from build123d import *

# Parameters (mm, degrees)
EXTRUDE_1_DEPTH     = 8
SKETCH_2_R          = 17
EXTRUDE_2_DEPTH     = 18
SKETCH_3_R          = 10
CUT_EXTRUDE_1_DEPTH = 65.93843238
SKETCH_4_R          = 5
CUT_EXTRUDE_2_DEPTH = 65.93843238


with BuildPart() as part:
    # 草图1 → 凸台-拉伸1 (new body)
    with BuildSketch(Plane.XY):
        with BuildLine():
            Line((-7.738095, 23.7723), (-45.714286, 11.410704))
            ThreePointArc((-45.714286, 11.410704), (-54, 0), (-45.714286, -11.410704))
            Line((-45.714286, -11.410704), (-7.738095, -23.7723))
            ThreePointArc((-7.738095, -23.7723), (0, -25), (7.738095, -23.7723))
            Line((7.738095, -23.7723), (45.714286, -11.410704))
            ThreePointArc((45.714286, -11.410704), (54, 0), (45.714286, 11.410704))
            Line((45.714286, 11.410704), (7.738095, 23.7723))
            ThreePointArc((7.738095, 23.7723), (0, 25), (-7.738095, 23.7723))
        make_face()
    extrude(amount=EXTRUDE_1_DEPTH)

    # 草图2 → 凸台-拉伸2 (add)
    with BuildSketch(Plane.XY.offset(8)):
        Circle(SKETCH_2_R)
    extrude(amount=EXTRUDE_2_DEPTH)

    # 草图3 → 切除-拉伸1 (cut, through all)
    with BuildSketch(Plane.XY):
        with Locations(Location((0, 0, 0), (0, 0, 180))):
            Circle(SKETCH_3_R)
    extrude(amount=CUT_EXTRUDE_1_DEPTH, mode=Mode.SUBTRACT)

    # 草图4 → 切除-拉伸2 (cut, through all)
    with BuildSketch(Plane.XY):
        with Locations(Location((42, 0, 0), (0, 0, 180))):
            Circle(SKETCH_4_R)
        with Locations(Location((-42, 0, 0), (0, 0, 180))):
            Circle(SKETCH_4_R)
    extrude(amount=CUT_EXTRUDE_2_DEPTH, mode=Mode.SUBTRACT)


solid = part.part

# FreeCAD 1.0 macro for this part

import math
import FreeCAD as App
import Part
import Sketcher
from FreeCAD import Vector

doc = App.newDocument("Part")
body = doc.addObject("PartDesign::Body", "Body")

# Sketch on XY plane
sketch1 = body.newObject("Sketcher::SketchObject", "Sketch")
sketch1.AttachmentSupport = (doc.getObject("XY_Plane"), [""])
sketch1.MapMode = "FlatFace"
sketch1.addGeometry([
    Part.LineSegment(Vector(-7.738095, 23.7723, 0), Vector(-45.714286, 11.410704, 0)),  # 0
    Part.ArcOfCircle(Part.Circle(Vector(-41.999995, 0, 0), Vector(0, 0, 1), 12.000005), math.radians(108.030555), math.radians(251.969445)),  # 1
    Part.LineSegment(Vector(-45.714286, -11.410704, 0), Vector(-7.738095, -23.7723, 0)),  # 2
    Part.ArcOfCircle(Part.Circle(Vector(0, 0.000147, 0), Vector(0, 0, 1), 25.000147), math.radians(-108.030425), math.radians(-71.969575)),  # 3
    Part.LineSegment(Vector(7.738095, -23.7723, 0), Vector(45.714286, -11.410704, 0)),  # 4
    Part.ArcOfCircle(Part.Circle(Vector(41.999995, 0, 0), Vector(0, 0, 1), 12.000005), math.radians(-71.969445), math.radians(71.969445)),  # 5
    Part.LineSegment(Vector(45.714286, 11.410704, 0), Vector(7.738095, 23.7723, 0)),  # 6
    Part.ArcOfCircle(Part.Circle(Vector(0, -0.000147, 0), Vector(0, 0, 1), 25.000147), math.radians(71.969575), math.radians(108.030425)),  # 7
], False)
sketch1.addConstraint([
    Sketcher.Constraint("Tangent", 0, 2, 1, 1),
    Sketcher.Constraint("Tangent", 1, 2, 2, 1),
    Sketcher.Constraint("Coincident", 2, 2, 3, 1),
    Sketcher.Constraint("Coincident", 3, 2, 4, 1),
    Sketcher.Constraint("Tangent", 4, 2, 5, 1),
    Sketcher.Constraint("Tangent", 5, 2, 6, 1),
    Sketcher.Constraint("Coincident", 6, 2, 7, 1),
    Sketcher.Constraint("Coincident", 7, 2, 0, 1),
    Sketcher.Constraint("Equal", 1, 5),
    Sketcher.Constraint("Equal", 3, 7),
    Sketcher.Constraint("Symmetric", 1, 3, 5, 3, -1, 1),
    Sketcher.Constraint("Symmetric", 3, 3, 7, 3, -1, 1),
    Sketcher.Constraint("Symmetric", 2, 2, 3, 2, -2),
    Sketcher.Constraint("PointOnObject", 1, 3, -1),
    Sketcher.Constraint("Horizontal", 6, 2, 7, 2),
    Sketcher.Constraint("Vertical", 3, 2, 6, 2),
    Sketcher.Constraint("Radius", 1, 12.000005),
    Sketcher.Constraint("Radius", 3, 25.000147),
    Sketcher.Constraint("DistanceY", 2, 2, -1, 1, 23.7723),
    Sketcher.Constraint("DistanceX", 1, 3, 2, 2, 34.2619),
    Sketcher.Constraint("DistanceX", 1, 3, 5, 3, 83.99999),
])
pad1 = body.newObject("PartDesign::Pad", "Pad")
pad1.Profile = sketch1
pad1.Length = 8

# Sketch on XY plane
sketch2 = body.newObject("Sketcher::SketchObject", "Sketch001")
sketch2.AttachmentSupport = (doc.getObject("XY_Plane"), [""])
sketch2.MapMode = "FlatFace"
sketch2.AttachmentOffset = App.Placement(Vector(0, 0, 8), App.Rotation())
sketch2.addGeometry(Part.Circle(Vector(0, 0, 0), Vector(0, 0, 1), 17), False)
sketch2.addConstraint([
    Sketcher.Constraint("Coincident", 0, 3, -1, 1),
    Sketcher.Constraint("Diameter", 0, 34.0),
])
pad2 = body.newObject("PartDesign::Pad", "Pad001")
pad2.Profile = sketch2
pad2.Length = 18

# Sketch on XY plane
sketch3 = body.newObject("Sketcher::SketchObject", "Sketch002")
sketch3.AttachmentSupport = (doc.getObject("XY_Plane"), [""])
sketch3.MapMode = "FlatFace"
sketch3.addGeometry(Part.Circle(Vector(0, 0, 0), Vector(0, 0, 1), 10), False)
sketch3.addConstraint([
    Sketcher.Constraint("Coincident", 0, 3, -1, 1),
    Sketcher.Constraint("Diameter", 0, 20.0),
])
pocket1 = body.newObject("PartDesign::Pocket", "Pocket")
pocket1.Profile = sketch3
pocket1.Type = "ThroughAll"
pocket1.Reversed = True

# Sketch on XY plane
sketch4 = body.newObject("Sketcher::SketchObject", "Sketch003")
sketch4.AttachmentSupport = (doc.getObject("XY_Plane"), [""])
sketch4.MapMode = "FlatFace"
sketch4.addGeometry([
    Part.Circle(Vector(42, 0, 0), Vector(0, 0, 1), 5),
    Part.Circle(Vector(-42, 0, 0), Vector(0, 0, 1), 5),
], False)
sketch4.addConstraint([
    Sketcher.Constraint("Equal", 0, 1),
    Sketcher.Constraint("Symmetric", 0, 3, 1, 3, -1, 1),
    Sketcher.Constraint("PointOnObject", 0, 3, -1),
    Sketcher.Constraint("Diameter", 0, 10.0),
    Sketcher.Constraint("DistanceX", -1, 1, 0, 3, 42.0),
])
pocket2 = body.newObject("PartDesign::Pocket", "Pocket001")
pocket2.Profile = sketch4
pocket2.Type = "ThroughAll"
pocket2.Reversed = True

doc.recompute()
